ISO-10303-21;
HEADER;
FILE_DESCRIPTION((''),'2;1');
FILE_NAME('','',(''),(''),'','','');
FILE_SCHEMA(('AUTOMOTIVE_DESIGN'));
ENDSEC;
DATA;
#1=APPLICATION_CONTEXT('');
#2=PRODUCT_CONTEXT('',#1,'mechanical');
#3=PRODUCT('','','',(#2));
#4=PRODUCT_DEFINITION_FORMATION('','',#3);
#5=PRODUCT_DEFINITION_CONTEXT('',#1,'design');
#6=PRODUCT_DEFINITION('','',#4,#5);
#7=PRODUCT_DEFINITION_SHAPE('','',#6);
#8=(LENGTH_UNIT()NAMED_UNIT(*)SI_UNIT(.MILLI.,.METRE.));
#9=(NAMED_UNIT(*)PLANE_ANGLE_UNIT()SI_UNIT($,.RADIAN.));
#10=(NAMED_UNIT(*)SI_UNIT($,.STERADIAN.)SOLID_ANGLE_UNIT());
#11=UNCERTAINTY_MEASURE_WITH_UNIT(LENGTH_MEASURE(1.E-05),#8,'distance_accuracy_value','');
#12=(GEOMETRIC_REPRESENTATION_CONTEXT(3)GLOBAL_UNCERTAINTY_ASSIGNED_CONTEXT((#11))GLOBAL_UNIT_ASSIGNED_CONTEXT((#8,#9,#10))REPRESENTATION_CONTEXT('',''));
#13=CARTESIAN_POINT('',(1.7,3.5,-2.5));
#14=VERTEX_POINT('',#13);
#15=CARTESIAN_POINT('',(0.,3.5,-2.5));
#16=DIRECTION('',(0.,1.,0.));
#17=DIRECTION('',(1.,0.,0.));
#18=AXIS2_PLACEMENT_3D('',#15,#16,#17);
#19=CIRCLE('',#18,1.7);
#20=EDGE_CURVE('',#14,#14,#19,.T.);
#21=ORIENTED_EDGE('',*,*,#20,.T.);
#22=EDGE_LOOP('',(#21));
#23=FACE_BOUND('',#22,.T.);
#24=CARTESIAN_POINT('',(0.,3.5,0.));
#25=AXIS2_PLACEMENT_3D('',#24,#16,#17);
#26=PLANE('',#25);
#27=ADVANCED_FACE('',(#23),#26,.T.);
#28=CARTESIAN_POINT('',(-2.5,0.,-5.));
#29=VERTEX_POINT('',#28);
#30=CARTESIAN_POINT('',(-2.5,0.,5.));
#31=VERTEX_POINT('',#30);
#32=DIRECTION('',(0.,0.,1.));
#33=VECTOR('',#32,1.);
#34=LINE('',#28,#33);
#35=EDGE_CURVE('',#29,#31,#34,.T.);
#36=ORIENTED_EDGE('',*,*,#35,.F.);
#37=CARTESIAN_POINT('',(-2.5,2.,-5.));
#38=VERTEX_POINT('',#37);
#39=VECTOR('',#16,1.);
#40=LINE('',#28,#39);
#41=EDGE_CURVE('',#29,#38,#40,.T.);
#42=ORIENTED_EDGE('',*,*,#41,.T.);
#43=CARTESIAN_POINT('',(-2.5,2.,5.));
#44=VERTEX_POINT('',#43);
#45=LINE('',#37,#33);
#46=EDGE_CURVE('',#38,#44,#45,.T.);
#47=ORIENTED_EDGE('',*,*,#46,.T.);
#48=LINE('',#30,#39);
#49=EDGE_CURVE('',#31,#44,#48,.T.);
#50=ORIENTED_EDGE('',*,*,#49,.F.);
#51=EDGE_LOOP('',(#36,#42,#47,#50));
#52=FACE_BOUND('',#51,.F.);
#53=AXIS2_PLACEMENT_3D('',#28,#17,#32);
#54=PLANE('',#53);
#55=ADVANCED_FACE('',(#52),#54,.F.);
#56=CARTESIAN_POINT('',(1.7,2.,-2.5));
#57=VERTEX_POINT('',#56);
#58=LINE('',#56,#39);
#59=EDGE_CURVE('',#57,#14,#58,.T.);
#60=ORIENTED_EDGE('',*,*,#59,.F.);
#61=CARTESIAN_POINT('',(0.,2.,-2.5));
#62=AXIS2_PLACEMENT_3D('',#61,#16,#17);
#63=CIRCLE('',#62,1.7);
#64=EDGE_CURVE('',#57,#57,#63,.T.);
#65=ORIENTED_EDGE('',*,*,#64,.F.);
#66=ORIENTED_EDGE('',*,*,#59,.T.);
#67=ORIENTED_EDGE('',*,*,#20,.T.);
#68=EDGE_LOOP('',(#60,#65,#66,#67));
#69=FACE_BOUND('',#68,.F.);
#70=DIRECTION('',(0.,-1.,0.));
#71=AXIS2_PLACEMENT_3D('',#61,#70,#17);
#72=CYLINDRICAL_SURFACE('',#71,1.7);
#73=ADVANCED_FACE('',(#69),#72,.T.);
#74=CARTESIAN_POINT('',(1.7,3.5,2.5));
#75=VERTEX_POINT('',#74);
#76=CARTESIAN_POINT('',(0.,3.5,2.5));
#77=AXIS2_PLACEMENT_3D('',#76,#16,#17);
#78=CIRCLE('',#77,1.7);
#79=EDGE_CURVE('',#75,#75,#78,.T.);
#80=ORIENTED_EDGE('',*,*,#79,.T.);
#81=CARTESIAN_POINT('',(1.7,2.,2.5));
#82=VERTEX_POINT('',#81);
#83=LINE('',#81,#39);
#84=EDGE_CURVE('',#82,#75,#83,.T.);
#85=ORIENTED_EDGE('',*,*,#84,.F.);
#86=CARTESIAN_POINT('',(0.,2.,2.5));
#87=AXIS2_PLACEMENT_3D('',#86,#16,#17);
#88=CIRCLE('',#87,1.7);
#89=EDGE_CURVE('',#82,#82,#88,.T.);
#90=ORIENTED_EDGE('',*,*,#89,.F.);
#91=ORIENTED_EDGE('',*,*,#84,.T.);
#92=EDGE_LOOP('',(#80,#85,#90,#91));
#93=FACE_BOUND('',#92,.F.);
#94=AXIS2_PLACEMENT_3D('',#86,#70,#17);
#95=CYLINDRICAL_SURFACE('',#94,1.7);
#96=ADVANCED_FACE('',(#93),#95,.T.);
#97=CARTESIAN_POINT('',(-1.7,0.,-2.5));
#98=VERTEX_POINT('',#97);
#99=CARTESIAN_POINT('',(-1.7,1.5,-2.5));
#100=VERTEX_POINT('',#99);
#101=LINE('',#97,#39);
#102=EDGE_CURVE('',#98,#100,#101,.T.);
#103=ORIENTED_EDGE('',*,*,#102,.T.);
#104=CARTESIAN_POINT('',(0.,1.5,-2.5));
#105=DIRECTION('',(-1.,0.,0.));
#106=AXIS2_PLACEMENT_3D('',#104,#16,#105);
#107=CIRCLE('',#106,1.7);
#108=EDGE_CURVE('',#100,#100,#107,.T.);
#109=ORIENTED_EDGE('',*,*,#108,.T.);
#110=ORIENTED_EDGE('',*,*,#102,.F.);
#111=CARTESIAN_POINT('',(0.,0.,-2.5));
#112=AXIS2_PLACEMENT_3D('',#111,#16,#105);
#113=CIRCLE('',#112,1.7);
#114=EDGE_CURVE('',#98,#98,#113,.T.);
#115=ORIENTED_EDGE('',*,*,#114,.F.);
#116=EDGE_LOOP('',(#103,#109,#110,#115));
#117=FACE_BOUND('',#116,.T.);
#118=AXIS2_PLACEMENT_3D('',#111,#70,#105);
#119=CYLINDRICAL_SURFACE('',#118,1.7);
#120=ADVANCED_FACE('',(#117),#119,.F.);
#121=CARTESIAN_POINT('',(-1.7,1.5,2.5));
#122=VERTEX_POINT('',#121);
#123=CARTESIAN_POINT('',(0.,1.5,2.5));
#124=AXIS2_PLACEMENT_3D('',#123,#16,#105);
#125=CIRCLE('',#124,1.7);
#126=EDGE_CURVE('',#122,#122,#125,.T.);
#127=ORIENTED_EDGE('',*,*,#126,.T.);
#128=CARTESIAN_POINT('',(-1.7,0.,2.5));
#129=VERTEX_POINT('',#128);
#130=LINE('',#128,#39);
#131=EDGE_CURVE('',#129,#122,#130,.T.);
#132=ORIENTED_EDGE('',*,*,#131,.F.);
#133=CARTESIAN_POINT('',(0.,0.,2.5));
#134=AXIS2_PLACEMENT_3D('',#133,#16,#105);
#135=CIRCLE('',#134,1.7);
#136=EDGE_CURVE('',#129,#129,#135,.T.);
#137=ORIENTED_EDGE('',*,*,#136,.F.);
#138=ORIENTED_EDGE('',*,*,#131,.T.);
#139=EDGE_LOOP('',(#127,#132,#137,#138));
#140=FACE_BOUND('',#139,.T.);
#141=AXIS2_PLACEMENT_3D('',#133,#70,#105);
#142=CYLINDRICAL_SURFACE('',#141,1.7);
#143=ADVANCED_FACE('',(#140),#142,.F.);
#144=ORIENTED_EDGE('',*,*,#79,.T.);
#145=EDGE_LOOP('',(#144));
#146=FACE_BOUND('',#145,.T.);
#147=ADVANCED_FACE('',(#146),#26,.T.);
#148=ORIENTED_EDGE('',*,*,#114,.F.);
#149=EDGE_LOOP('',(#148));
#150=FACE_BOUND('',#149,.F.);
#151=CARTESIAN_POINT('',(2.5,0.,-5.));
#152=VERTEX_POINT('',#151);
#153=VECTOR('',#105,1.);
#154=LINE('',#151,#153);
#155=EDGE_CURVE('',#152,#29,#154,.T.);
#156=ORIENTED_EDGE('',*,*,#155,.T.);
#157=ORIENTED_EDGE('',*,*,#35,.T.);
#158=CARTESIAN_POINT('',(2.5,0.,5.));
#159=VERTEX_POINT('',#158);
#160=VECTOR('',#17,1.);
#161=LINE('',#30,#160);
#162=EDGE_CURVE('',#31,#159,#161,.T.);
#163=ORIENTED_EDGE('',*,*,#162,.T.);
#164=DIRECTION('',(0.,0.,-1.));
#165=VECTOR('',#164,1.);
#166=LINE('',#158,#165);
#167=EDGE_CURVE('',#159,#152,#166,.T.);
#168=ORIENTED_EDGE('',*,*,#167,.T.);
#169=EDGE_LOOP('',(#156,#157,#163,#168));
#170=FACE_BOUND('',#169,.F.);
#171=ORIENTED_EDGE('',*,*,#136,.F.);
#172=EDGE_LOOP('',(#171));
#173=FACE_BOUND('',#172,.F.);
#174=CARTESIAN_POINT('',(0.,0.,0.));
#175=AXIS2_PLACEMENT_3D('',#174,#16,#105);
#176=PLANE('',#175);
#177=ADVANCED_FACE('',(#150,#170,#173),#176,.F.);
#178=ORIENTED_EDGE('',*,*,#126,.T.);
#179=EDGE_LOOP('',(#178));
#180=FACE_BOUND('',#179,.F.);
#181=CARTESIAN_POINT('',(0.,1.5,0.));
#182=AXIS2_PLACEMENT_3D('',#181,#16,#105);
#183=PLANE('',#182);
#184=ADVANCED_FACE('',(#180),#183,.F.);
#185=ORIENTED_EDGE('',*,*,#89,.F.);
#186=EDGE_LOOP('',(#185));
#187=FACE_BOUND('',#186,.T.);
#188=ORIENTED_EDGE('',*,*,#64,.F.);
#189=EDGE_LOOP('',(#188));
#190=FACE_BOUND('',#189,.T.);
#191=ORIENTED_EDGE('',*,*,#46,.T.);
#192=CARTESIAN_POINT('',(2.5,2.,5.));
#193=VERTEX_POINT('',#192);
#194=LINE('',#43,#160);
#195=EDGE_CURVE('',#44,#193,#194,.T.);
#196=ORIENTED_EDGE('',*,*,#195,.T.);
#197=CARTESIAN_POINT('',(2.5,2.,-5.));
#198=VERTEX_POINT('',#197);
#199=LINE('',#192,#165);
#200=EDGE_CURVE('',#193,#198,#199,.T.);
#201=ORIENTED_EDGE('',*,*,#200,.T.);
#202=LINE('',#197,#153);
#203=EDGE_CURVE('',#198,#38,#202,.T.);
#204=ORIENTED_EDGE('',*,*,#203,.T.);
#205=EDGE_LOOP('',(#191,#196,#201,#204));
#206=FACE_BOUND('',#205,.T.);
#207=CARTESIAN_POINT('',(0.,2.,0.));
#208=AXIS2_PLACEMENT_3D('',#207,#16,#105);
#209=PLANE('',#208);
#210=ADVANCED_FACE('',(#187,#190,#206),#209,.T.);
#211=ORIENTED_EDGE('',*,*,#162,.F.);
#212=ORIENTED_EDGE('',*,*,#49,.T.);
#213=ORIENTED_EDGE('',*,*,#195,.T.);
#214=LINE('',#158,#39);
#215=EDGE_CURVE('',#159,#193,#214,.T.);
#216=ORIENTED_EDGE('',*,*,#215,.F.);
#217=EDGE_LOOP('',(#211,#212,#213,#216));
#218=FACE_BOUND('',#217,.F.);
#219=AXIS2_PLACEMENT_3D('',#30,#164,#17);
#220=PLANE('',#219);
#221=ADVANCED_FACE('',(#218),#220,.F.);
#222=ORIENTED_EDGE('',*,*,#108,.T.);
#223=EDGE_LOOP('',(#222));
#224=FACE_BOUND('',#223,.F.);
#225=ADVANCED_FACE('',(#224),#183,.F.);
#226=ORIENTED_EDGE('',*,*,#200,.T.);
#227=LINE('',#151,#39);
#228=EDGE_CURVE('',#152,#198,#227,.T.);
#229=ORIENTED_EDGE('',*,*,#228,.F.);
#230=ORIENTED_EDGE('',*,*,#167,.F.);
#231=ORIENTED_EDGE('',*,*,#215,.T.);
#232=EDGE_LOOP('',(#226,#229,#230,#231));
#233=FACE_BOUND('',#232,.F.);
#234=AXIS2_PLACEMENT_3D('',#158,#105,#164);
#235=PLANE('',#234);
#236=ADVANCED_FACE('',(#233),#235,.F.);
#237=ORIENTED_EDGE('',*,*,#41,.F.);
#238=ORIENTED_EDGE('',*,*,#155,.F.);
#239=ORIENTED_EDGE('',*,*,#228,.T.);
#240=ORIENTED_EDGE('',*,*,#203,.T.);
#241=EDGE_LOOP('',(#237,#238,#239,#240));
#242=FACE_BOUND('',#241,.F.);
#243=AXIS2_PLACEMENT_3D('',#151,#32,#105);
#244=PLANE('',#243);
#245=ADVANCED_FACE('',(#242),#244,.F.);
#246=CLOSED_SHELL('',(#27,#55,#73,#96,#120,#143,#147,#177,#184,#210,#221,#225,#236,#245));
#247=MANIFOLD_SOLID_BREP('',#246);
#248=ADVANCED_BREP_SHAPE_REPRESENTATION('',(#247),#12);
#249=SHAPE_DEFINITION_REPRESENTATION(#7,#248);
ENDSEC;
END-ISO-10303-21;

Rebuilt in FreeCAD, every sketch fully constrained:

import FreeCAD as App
import Part
import Sketcher
Q = App.Units.Quantity


def add_polygon(sketch, points):
    """Adds a closed chain of lines whose ends are joined by coincident constraints."""
    first, n = sketch.GeometryCount, len(points)
    for a, b in zip(points, points[1:] + points[:1]):
        sketch.addGeometry(Part.LineSegment(App.Vector(*a, 0), App.Vector(*b, 0)), False)
    for i in range(n):
        sketch.addConstraint(Sketcher.Constraint("Coincident", first + i, 2, first + (i + 1) % n, 1))

doc = App.newDocument("Part")
body = doc.addObject("PartDesign::Body", "Body")

# Sketch on XZ plane
sketch1 = doc.addObject("Sketcher::SketchObject", "Sketch")
body.addObject(sketch1)
sketch1.AttachmentSupport = (doc.XZ_Plane, [""])
sketch1.MapMode = "FlatFace"
add_polygon(sketch1, [(-2, -5), (-2, 5), (2, 5), (2, -5)])  # lines 0-3
sketch1.addConstraint([
    Sketcher.Constraint("Vertical", 0),
    Sketcher.Constraint("Horizontal", 1),
    Sketcher.Constraint("Vertical", 2),
    Sketcher.Constraint("Horizontal", 3),
    Sketcher.Constraint("Symmetric", 0, 2, 2, 2, -1, 1),
    Sketcher.Constraint("DistanceX", 1, 1, 1, 2, Q("5 mm")),
    Sketcher.Constraint("DistanceY", 0, 1, 0, 2, Q("10 mm")),
])
pad1 = doc.addObject("PartDesign::Pad", "Pad")
body.addObject(pad1)
pad1.Profile = sketch1
pad1.Length = 2
pad1.Reversed = True

# Sketch on XZ plane
sketch2 = doc.addObject("Sketcher::SketchObject", "Sketch001")
body.addObject(sketch2)
sketch2.AttachmentSupport = (doc.XZ_Plane, [""])
sketch2.MapMode = "FlatFace"
sketch2.addGeometry([
    Part.Circle(App.Vector(0, 2.5, 0), App.Vector(0, 0, 1), 1.7),
    Part.Circle(App.Vector(0, -2.5, 0), App.Vector(0, 0, 1), 1.7),
], False)
sketch2.addConstraint([
    Sketcher.Constraint("Equal", 0, 1),
    Sketcher.Constraint("Symmetric", 0, 3, 1, 3, -1, 1),
    Sketcher.Constraint("PointOnObject", 0, 3, -2),
    Sketcher.Constraint("Diameter", 0, Q("3.4 mm")),
    Sketcher.Constraint("DistanceY", 1, 3, 0, 3, Q("5 mm")),
])
pocket1 = doc.addObject("PartDesign::Pocket", "Pocket")
body.addObject(pocket1)
pocket1.Profile = sketch2
pocket1.Length = 1.5

# Sketch on XZ plane
sketch3 = doc.addObject("Sketcher::SketchObject", "Sketch002")
body.addObject(sketch3)
sketch3.AttachmentSupport = (doc.XZ_Plane, [""])
sketch3.MapMode = "FlatFace"
sketch3.AttachmentOffset = App.Placement(App.Vector(0, 0, -2), App.Rotation())
sketch3.addGeometry([
    Part.Circle(App.Vector(0, 2.5, 0), App.Vector(0, 0, 1), 1.7),
    Part.Circle(App.Vector(0, -2.5, 0), App.Vector(0, 0, 1), 1.7),
], False)
sketch3.addConstraint([
    Sketcher.Constraint("Equal", 0, 1),
    Sketcher.Constraint("Symmetric", 0, 3, 1, 3, -1, 1),
    Sketcher.Constraint("PointOnObject", 0, 3, -2),
    Sketcher.Constraint("Diameter", 0, Q("3.4 mm")),
    Sketcher.Constraint("DistanceY", 1, 3, 0, 3, Q("5 mm")),
])
pad2 = doc.addObject("PartDesign::Pad", "Pad001")
body.addObject(pad2)
pad2.Profile = sketch3
pad2.Length = 1.5
pad2.Reversed = True

doc.recompute()
